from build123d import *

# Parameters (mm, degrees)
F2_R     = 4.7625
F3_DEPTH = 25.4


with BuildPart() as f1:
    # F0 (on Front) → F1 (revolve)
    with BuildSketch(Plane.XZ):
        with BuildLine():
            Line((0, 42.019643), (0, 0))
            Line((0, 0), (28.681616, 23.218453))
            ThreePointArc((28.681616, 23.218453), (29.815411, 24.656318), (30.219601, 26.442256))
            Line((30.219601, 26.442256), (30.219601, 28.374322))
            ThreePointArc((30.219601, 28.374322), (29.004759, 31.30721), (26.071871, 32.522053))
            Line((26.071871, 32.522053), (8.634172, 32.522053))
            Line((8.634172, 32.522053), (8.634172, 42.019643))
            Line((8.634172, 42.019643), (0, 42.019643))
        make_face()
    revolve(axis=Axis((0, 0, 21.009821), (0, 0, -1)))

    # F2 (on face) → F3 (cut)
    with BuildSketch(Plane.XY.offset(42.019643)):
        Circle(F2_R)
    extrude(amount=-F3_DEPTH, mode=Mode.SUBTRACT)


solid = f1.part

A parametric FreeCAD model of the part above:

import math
import FreeCAD as App
import Part
import Sketcher

V = App.Vector
Q = App.Units.Quantity

doc = App.newDocument("Part")
body = doc.addObject("PartDesign::Body", "Body")

# Sketch on XZ plane
sketch1 = body.newObject("Sketcher::SketchObject", "Sketch")
sketch1.AttachmentSupport = (doc.getObject("XZ_Plane"), [""])
sketch1.MapMode = "FlatFace"
sketch1.addGeometry([
    Part.LineSegment(V(0, 42, 0), V(0, 0, 0)),  # 0
    Part.LineSegment(V(0, 0, 0), V(28.7, 23.2, 0)),  # 1
    Part.ArcOfCircle(Part.Circle(V(26.1, 26.4, 0), V(0, 0, 1), 4.1), math.radians(-51), math.radians(0)),  # 2
    Part.LineSegment(V(30.2, 26.4, 0), V(30.2, 28.4, 0)),  # 3
    Part.ArcOfCircle(Part.Circle(V(26.1, 28.4, 0), V(0, 0, 1), 4.1), math.radians(0), math.radians(90)),  # 4
    Part.LineSegment(V(26.1, 32.5, 0), V(8.6, 32.5, 0)),  # 5
    Part.LineSegment(V(8.6, 32.5, 0), V(8.6, 42, 0)),  # 6
    Part.LineSegment(V(8.6, 42, 0), V(0, 42, 0)),  # 7
], False)
sketch1.addConstraint([
    Sketcher.Constraint("Coincident", 0, 2, 1, 1),
    Sketcher.Constraint("Tangent", 1, 2, 2, 1),
    Sketcher.Constraint("Tangent", 2, 2, 3, 1),
    Sketcher.Constraint("Tangent", 3, 2, 4, 1),
    Sketcher.Constraint("Tangent", 4, 2, 5, 1),
    Sketcher.Constraint("Coincident", 5, 2, 6, 1),
    Sketcher.Constraint("Coincident", 6, 2, 7, 1),
    Sketcher.Constraint("Coincident", 7, 2, 0, 1),
    Sketcher.Constraint("Vertical", 0),
    Sketcher.Constraint("Vertical", 3),
    Sketcher.Constraint("Horizontal", 5),
    Sketcher.Constraint("Vertical", 6),
    Sketcher.Constraint("Horizontal", 7),
    Sketcher.Constraint("Coincident", 0, 2, -1, 1),
    Sketcher.Constraint("Radius", 4, 4.147732),
    Sketcher.Constraint("DistanceX", 5, 2, 5, 1, 17.437699),
    Sketcher.Constraint("Radius", 2, 4.147734),
    Sketcher.Constraint("DistanceY", 6, 1, 6, 2, 9.49759),
    Sketcher.Constraint("DistanceX", -1, 1, 2, 2, 30.219601),
    Sketcher.Constraint("DistanceY", 1, 2, 4, 2, 9.3036),
    Sketcher.Constraint("Distance", 1, 36.901648),
])
revolution = body.newObject("PartDesign::Revolution", "Revolution")
revolution.Profile = sketch1
revolution.ReferenceAxis = (sketch1, ["V_Axis"])
revolution.Angle = 360

# Sketch on XY plane
sketch2 = body.newObject("Sketcher::SketchObject", "Sketch001")
sketch2.AttachmentSupport = (doc.getObject("XY_Plane"), [""])
sketch2.MapMode = "FlatFace"
sketch2.AttachmentOffset = App.Placement(V(0, 0, 42.019643), App.Rotation())
sketch2.addGeometry(Part.Circle(V(0, 0, 0), V(0, 0, 1), 4.8), False)
sketch2.addConstraint([
    Sketcher.Constraint("Coincident", 0, 3, -1, 1),
    Sketcher.Constraint("Diameter", 0, Q("0.375 in")),
])
pocket1 = body.newObject("PartDesign::Pocket", "Pocket")
pocket1.Profile = sketch2
pocket1.Length = Q("1 in")

doc.recompute()
